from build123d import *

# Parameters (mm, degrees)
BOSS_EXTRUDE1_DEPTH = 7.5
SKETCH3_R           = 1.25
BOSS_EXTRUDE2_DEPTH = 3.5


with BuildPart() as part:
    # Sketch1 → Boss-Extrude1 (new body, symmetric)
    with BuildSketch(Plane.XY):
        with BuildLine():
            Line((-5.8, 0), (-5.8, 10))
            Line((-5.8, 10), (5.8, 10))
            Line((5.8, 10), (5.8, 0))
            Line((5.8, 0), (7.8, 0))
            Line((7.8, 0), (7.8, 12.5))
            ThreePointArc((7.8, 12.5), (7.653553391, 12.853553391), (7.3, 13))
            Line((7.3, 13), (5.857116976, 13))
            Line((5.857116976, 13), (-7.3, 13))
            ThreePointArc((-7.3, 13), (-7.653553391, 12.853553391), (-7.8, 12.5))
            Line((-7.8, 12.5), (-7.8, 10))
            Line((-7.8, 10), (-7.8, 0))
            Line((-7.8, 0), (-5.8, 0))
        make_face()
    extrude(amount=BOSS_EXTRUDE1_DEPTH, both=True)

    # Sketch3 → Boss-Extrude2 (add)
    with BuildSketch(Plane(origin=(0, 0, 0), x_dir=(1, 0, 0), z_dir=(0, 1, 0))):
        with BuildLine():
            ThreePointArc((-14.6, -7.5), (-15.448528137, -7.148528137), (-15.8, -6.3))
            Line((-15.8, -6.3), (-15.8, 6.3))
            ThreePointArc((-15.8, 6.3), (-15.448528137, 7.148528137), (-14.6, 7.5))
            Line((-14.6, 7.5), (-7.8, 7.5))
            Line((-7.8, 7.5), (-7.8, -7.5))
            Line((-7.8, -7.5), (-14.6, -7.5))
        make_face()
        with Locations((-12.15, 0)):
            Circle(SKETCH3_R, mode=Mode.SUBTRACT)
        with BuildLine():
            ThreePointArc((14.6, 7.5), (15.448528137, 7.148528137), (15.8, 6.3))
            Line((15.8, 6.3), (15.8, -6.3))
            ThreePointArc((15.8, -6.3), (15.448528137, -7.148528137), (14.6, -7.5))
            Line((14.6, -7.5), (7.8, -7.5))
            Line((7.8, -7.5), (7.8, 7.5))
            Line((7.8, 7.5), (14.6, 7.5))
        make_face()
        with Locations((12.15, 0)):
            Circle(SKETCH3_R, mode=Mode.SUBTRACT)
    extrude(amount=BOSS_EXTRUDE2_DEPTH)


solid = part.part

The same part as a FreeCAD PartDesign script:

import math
import FreeCAD as App
import Part
import Sketcher

V = App.Vector
Q = App.Units.Quantity

doc = App.newDocument("Part")
body = doc.addObject("PartDesign::Body", "Body")

# Sketch on XY plane
sketch1 = doc.addObject("Sketcher::SketchObject", "Sketch")
body.addObject(sketch1)
sketch1.AttachmentSupport = (doc.XY_Plane, [""])
sketch1.MapMode = "FlatFace"
sketch1.addGeometry([
    Part.LineSegment(V(-5.8, 0, 0), V(-5.8, 10, 0)),  # 0
    Part.LineSegment(V(-5.8, 10, 0), V(5.8, 10, 0)),  # 1
    Part.LineSegment(V(5.8, 10, 0), V(5.8, 0, 0)),  # 2
    Part.LineSegment(V(5.8, 0, 0), V(7.8, 0, 0)),  # 3
    Part.LineSegment(V(7.8, 0, 0), V(7.8, 12.5, 0)),  # 4
    Part.ArcOfCircle(Part.Circle(V(7.3, 12.5, 0), V(0, 0, 1), 0.5), math.radians(0), math.radians(90)),  # 5
    Part.LineSegment(V(7.3, 13, 0), V(-7.3, 13, 0)),  # 6
    Part.ArcOfCircle(Part.Circle(V(-7.3, 12.5, 0), V(0, 0, 1), 0.5), math.radians(90), math.radians(180)),  # 7
    Part.LineSegment(V(-7.8, 12.5, 0), V(-7.8, 0, 0)),  # 8
    Part.LineSegment(V(-7.8, 0, 0), V(-5.8, 0, 0)),  # 9
], False)
sketch1.addConstraint([
    Sketcher.Constraint("Coincident", 0, 2, 1, 1),
    Sketcher.Constraint("Coincident", 1, 2, 2, 1),
    Sketcher.Constraint("Coincident", 2, 2, 3, 1),
    Sketcher.Constraint("Coincident", 3, 2, 4, 1),
    Sketcher.Constraint("Tangent", 4, 2, 5, 1),
    Sketcher.Constraint("Tangent", 5, 2, 6, 1),
    Sketcher.Constraint("Tangent", 6, 2, 7, 1),
    Sketcher.Constraint("Tangent", 7, 2, 8, 1),
    Sketcher.Constraint("Coincident", 8, 2, 9, 1),
    Sketcher.Constraint("Coincident", 9, 2, 0, 1),
    Sketcher.Constraint("Vertical", 0),
    Sketcher.Constraint("Horizontal", 1),
    Sketcher.Constraint("Vertical", 2),
    Sketcher.Constraint("Horizontal", 3),
    Sketcher.Constraint("Vertical", 4),
    Sketcher.Constraint("Horizontal", 6),
    Sketcher.Constraint("Vertical", 8),
    Sketcher.Constraint("Horizontal", 9),
    Sketcher.Constraint("Equal", 5, 7),
    Sketcher.Constraint("Symmetric", 3, 2, 8, 2, -1, 1),
    Sketcher.Constraint("Symmetric", 2, 2, 9, 2, -2),
    Sketcher.Constraint("Radius", 5, Q("0.5 mm")),
    Sketcher.Constraint("DistanceX", 3, 1, 3, 2, Q("2 mm")),
    Sketcher.Constraint("DistanceY", 0, 1, 0, 2, Q("10 mm")),
    Sketcher.Constraint("DistanceX", 1, 1, 1, 2, Q("11.6 mm")),
    Sketcher.Constraint("DistanceY", 4, 1, 4, 2, Q("12.5 mm")),
])
pad1 = doc.addObject("PartDesign::Pad", "Pad")
body.addObject(pad1)
pad1.Profile = sketch1
pad1.Length = 15
pad1.Midplane = True

# Sketch on XZ plane
sketch2 = doc.addObject("Sketcher::SketchObject", "Sketch001")
body.addObject(sketch2)
sketch2.AttachmentSupport = (doc.XZ_Plane, [""])
sketch2.MapMode = "FlatFace"
sketch2.addGeometry([
    Part.ArcOfCircle(Part.Circle(V(-14.6, 6.3, 0), V(0, 0, 1), 1.2), math.radians(90), math.radians(180)),  # 0
    Part.LineSegment(V(-14.6, 7.5, 0), V(-7.8, 7.5, 0)),  # 1
    Part.LineSegment(V(-7.8, 7.5, 0), V(-7.8, -7.5, 0)),  # 2
    Part.LineSegment(V(-7.8, -7.5, 0), V(-14.6, -7.5, 0)),  # 3
    Part.ArcOfCircle(Part.Circle(V(-14.6, -6.3, 0), V(0, 0, 1), 1.2), math.radians(-180), math.radians(-90)),  # 4
    Part.LineSegment(V(-15.8, -6.3, 0), V(-15.8, 6.3, 0)),  # 5
    Part.Circle(V(-12.15, 0, 0), V(0, 0, 1), 1.25),  # 6
    Part.ArcOfCircle(Part.Circle(V(14.6, -6.3, 0), V(0, 0, 1), 1.2), math.radians(-90), math.radians(0)),  # 7
    Part.LineSegment(V(14.6, -7.5, 0), V(7.8, -7.5, 0)),  # 8
    Part.LineSegment(V(7.8, -7.5, 0), V(7.8, 7.5, 0)),  # 9
    Part.LineSegment(V(7.8, 7.5, 0), V(14.6, 7.5, 0)),  # 10
    Part.ArcOfCircle(Part.Circle(V(14.6, 6.3, 0), V(0, 0, 1), 1.2), math.radians(0), math.radians(90)),  # 11
    Part.LineSegment(V(15.8, 6.3, 0), V(15.8, -6.3, 0)),  # 12
    Part.Circle(V(12.15, 0, 0), V(0, 0, 1), 1.25),  # 13
], False)
sketch2.addConstraint([
    Sketcher.Constraint("Tangent", 0, 1, 1, 1),
    Sketcher.Constraint("Coincident", 1, 2, 2, 1),
    Sketcher.Constraint("Coincident", 2, 2, 3, 1),
    Sketcher.Constraint("Tangent", 3, 2, 4, 2),
    Sketcher.Constraint("Tangent", 4, 1, 5, 1),
    Sketcher.Constraint("Tangent", 5, 2, 0, 2),
    Sketcher.Constraint("Tangent", 7, 1, 8, 1),
    Sketcher.Constraint("Coincident", 8, 2, 9, 1),
    Sketcher.Constraint("Coincident", 9, 2, 10, 1),
    Sketcher.Constraint("Tangent", 10, 2, 11, 2),
    Sketcher.Constraint("Tangent", 11, 1, 12, 1),
    Sketcher.Constraint("Tangent", 12, 2, 7, 2),
    Sketcher.Constraint("Horizontal", 1),
    Sketcher.Constraint("Vertical", 2),
    Sketcher.Constraint("Horizontal", 3),
    Sketcher.Constraint("Vertical", 5),
    Sketcher.Constraint("Horizontal", 8),
    Sketcher.Constraint("Vertical", 9),
    Sketcher.Constraint("Horizontal", 10),
    Sketcher.Constraint("Vertical", 12),
    Sketcher.Constraint("Equal", 0, 4),
    Sketcher.Constraint("Equal", 4, 7),
    Sketcher.Constraint("Equal", 7, 11),
    Sketcher.Constraint("Equal", 6, 13),
    Sketcher.Constraint("Symmetric", 0, 3, 7, 3, -1, 1),
    Sketcher.Constraint("Symmetric", 6, 3, 13, 3, -1, 1),
    Sketcher.Constraint("Symmetric", 2, 2, 9, 2, -1, 1),
    Sketcher.Constraint("PointOnObject", 6, 3, -1),
    Sketcher.Constraint("Horizontal", 4, 3, 7, 3),
    Sketcher.Constraint("Diameter", 6, Q("2.5 mm")),
    Sketcher.Constraint("Radius", 0, Q("1.2 mm")),
    Sketcher.Constraint("DistanceY", 2, 2, 2, 1, Q("15 mm")),
    Sketcher.Constraint("DistanceX", 1, 1, 1, 2, Q("6.8 mm")),
    Sketcher.Constraint("DistanceX", 0, 3, -1, 1, Q("14.6 mm")),
    Sketcher.Constraint("DistanceX", 6, 3, 13, 3, Q("24.3 mm")),
])
pad2 = doc.addObject("PartDesign::Pad", "Pad001")
body.addObject(pad2)
pad2.Profile = sketch2
pad2.Length = 3.5
pad2.Reversed = True

doc.recompute()
